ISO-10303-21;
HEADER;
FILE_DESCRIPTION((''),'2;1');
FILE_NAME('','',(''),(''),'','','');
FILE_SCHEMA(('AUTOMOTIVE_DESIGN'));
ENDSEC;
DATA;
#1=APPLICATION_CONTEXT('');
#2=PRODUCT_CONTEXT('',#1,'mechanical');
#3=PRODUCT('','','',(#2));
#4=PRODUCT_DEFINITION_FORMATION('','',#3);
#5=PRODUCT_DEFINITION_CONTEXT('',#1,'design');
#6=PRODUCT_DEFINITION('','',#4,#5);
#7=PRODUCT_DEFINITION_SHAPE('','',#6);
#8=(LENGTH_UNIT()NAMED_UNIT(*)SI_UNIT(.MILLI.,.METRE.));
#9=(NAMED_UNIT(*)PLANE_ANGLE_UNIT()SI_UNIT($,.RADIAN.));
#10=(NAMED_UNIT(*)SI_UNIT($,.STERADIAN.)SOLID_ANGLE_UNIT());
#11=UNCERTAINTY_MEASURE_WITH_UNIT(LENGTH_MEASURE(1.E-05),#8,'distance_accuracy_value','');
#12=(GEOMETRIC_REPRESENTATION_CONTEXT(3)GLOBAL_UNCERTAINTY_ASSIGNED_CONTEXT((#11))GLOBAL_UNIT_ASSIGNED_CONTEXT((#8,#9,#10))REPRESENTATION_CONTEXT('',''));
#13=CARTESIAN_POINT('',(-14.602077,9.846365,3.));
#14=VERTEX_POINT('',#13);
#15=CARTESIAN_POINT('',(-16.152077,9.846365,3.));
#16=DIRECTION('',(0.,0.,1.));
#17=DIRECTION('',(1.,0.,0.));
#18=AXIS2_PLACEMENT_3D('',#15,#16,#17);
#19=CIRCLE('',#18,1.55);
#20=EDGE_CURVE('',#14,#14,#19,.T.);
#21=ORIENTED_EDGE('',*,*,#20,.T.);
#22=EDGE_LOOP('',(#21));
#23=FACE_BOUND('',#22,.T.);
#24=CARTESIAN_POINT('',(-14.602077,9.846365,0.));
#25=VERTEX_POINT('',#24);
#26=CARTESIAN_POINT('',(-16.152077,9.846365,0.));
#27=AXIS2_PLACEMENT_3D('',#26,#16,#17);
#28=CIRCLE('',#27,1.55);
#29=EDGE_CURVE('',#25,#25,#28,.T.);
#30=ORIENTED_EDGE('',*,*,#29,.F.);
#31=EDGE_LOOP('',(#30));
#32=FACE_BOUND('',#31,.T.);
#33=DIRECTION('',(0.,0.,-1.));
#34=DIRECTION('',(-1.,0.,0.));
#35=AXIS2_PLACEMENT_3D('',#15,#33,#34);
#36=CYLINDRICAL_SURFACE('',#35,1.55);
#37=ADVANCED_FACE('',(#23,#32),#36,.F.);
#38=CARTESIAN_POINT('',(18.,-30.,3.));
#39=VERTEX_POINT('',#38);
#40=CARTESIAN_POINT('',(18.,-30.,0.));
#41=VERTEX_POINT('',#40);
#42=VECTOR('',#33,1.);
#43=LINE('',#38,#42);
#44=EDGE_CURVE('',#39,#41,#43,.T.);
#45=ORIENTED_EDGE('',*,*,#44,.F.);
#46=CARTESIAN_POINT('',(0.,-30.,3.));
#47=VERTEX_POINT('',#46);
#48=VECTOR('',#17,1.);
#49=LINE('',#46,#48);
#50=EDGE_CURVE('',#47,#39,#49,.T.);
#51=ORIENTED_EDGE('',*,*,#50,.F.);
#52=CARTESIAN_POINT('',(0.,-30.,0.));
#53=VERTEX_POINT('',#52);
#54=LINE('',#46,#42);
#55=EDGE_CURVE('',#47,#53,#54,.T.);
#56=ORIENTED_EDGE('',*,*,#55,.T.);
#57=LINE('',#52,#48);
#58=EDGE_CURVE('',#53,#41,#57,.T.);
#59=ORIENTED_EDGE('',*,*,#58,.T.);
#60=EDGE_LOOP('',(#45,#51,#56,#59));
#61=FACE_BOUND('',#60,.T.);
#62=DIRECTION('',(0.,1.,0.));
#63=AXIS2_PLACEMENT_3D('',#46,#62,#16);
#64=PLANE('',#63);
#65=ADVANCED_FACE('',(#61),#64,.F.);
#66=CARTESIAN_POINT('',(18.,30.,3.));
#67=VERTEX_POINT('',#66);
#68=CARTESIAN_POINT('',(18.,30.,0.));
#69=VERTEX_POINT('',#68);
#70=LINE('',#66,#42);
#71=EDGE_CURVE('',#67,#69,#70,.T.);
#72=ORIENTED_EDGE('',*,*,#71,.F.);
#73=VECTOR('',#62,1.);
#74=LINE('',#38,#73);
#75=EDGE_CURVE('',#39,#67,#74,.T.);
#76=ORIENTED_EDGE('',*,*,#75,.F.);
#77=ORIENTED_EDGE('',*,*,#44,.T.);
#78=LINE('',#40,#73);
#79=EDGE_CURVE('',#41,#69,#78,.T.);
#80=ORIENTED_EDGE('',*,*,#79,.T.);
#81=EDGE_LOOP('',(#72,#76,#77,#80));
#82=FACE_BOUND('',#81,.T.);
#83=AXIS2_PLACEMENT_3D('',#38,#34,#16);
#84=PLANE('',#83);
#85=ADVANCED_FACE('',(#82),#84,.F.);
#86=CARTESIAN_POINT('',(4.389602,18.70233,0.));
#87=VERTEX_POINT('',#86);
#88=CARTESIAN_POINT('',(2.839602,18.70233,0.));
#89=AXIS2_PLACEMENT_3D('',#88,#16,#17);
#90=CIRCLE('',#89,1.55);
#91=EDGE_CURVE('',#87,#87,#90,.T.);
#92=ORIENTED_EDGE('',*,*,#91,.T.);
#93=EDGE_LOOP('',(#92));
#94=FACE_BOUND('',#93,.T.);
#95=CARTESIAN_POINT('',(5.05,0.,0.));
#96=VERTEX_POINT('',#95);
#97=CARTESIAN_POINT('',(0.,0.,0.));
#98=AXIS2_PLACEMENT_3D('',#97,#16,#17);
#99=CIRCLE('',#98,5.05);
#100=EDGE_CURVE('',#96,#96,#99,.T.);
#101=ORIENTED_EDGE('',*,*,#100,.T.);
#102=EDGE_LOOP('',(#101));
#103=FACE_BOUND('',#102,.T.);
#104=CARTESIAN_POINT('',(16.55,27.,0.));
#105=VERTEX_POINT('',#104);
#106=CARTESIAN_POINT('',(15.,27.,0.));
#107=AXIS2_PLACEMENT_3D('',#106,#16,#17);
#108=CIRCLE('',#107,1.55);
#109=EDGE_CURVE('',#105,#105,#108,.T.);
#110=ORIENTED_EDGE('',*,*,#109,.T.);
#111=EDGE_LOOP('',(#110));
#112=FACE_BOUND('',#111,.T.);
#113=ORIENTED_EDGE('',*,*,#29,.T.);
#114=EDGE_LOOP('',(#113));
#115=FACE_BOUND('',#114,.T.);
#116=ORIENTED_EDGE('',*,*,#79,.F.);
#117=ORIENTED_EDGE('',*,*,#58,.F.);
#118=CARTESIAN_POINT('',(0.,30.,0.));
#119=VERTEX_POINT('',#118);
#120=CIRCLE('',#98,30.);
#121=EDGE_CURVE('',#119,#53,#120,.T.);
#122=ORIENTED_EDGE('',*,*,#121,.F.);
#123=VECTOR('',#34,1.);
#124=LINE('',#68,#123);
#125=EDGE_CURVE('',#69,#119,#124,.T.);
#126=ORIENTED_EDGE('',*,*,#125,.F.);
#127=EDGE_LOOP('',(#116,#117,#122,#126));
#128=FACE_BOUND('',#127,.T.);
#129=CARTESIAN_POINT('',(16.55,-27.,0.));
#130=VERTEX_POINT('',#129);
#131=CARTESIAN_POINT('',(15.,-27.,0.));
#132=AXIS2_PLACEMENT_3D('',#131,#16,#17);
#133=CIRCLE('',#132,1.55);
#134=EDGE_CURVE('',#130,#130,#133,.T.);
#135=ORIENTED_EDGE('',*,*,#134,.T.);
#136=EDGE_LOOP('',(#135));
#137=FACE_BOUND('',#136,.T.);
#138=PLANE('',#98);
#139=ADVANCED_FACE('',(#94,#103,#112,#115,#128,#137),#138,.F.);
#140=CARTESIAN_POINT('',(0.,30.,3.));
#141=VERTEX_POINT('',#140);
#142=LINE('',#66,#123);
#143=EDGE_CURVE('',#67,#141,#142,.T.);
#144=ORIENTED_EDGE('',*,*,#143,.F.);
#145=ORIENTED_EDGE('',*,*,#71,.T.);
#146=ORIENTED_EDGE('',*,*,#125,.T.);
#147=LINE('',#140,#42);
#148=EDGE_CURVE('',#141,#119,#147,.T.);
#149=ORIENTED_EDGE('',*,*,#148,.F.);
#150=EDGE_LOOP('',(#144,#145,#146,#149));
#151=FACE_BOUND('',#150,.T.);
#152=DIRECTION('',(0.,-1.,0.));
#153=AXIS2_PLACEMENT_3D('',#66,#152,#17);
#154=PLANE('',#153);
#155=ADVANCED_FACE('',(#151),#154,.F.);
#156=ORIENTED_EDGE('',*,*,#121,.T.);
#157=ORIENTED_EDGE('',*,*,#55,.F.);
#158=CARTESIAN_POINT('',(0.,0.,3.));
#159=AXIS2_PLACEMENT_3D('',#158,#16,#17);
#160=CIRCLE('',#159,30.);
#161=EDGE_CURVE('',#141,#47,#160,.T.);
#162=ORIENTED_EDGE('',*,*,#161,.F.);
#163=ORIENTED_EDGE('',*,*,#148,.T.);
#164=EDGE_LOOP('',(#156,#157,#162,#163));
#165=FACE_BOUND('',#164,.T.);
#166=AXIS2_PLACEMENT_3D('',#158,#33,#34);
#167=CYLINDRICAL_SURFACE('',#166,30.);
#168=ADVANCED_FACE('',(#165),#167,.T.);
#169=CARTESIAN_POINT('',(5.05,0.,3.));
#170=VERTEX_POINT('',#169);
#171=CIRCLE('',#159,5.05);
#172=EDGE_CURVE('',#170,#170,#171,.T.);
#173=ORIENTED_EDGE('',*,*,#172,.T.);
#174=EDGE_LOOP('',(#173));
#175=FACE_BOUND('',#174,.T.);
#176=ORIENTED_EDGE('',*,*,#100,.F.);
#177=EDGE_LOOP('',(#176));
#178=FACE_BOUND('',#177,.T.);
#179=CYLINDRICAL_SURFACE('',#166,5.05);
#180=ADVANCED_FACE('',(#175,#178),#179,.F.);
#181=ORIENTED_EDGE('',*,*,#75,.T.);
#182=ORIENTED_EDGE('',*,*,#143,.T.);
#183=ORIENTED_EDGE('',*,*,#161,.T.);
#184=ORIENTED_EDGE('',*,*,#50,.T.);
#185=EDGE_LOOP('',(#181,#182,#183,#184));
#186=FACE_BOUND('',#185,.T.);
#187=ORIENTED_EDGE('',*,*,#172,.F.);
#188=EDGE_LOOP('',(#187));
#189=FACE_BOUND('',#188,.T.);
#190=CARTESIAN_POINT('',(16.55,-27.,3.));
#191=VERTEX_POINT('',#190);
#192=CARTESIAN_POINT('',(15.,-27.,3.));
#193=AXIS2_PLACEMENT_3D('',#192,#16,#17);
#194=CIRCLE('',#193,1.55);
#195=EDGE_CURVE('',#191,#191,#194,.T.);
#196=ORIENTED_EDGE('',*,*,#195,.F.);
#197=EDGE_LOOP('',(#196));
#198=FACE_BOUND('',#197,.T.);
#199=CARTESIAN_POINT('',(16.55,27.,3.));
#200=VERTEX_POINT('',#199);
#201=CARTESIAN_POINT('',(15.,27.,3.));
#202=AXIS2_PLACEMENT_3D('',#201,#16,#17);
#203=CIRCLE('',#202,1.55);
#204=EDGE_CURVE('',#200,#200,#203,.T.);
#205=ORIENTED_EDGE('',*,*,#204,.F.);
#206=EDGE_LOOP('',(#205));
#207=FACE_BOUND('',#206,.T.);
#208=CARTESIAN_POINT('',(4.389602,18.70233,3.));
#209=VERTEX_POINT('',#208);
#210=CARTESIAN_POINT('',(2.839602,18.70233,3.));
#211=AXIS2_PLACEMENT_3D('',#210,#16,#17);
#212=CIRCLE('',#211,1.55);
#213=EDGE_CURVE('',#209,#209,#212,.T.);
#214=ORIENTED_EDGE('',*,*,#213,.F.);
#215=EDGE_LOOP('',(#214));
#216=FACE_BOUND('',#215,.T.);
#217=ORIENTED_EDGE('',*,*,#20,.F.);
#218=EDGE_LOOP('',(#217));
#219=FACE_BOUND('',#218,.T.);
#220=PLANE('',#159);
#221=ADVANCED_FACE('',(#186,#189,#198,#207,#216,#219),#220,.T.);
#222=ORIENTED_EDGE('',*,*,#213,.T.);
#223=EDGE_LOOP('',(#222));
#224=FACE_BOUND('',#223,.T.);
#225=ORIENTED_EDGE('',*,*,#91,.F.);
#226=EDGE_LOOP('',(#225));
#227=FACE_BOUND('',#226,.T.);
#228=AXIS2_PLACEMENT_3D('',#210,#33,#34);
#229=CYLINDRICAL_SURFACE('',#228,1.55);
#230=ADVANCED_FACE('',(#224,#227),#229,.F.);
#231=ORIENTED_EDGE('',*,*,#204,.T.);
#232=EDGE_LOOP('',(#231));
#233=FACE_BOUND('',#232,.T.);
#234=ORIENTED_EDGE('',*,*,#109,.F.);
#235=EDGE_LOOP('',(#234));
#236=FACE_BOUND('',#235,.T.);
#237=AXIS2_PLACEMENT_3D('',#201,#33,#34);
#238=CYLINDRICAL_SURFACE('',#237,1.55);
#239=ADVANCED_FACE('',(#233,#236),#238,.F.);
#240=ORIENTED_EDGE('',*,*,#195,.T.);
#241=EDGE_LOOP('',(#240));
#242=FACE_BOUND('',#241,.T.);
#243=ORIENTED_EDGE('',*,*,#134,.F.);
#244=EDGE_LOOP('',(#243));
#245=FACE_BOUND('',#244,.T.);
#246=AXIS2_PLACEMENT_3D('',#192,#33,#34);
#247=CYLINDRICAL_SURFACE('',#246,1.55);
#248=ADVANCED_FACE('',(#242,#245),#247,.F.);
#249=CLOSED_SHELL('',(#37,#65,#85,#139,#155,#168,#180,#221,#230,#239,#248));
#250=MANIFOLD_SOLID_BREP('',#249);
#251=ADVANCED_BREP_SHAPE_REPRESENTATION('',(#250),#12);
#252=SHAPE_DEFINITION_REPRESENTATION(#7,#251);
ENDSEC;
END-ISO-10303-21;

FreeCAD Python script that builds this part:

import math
import FreeCAD as App
import Part
import Sketcher
from FreeCAD import Vector

doc = App.newDocument("Part")
params = doc.addObject("Spreadsheet::Sheet", "Params")
for row, (alias, value) in enumerate([
    ("sketch1_radius", "30 mm"),
    ("sketch1_diameter", "3.1 mm"),
    ("sketch1_diameter2", "10.1 mm"),
    ("sketch1_width", "18 mm"),
    ("pad1_length", "3 mm"),
], start=1):
    params.set(f"A{row}", alias)
    params.set(f"B{row}", "=" + value)
    params.setAlias(f"B{row}", alias)

body = doc.addObject("PartDesign::Body", "Body")

sketch1 = doc.addObject("Sketcher::SketchObject", "Sketch")
body.addObject(sketch1)
sketch1.AttachmentSupport = (doc.XY_Plane, [""])
sketch1.MapMode = "FlatFace"
sketch1.addGeometry(Part.LineSegment(Vector(0, -30, 0), Vector(18, -30, 0)), False)
sketch1.addGeometry(Part.LineSegment(Vector(18, -30, 0), Vector(18, 30, 0)), False)
sketch1.addGeometry(Part.LineSegment(Vector(18, 30, 0), Vector(0, 30, 0)), False)
sketch1.addGeometry(Part.ArcOfCircle(Part.Circle(Vector(0, 0, 0), Vector(0, 0, 1), 30), math.radians(90), math.radians(270)), False)
sketch1.addGeometry(Part.Circle(Vector(15, -27, 0), Vector(0, 0, 1), 1.6), False)
sketch1.addGeometry(Part.Circle(Vector(-16.2, 9.8, 0), Vector(0, 0, 1), 1.6), False)
sketch1.addGeometry(Part.Circle(Vector(0, 0, 0), Vector(0, 0, 1), 5), False)
sketch1.addGeometry(Part.Circle(Vector(2.8, 18.7, 0), Vector(0, 0, 1), 1.6), False)
sketch1.addGeometry(Part.Circle(Vector(15, 27, 0), Vector(0, 0, 1), 1.6), False)
sketch1.addConstraint(Sketcher.Constraint("Coincident", 0, 2, 1, 1))
sketch1.addConstraint(Sketcher.Constraint("Coincident", 1, 2, 2, 1))
sketch1.addConstraint(Sketcher.Constraint("Tangent", 2, 2, 3, 1))
sketch1.addConstraint(Sketcher.Constraint("Tangent", 3, 2, 0, 1))
sketch1.addConstraint(Sketcher.Constraint("Horizontal", 0))
sketch1.addConstraint(Sketcher.Constraint("Vertical", 1))
sketch1.addConstraint(Sketcher.Constraint("Horizontal", 2))
sketch1.addConstraint(Sketcher.Constraint("Coincident", 3, 3, -1, 1))
sketch1.addConstraint(Sketcher.Constraint("Coincident", 6, 3, -1, 1))
sketch1.addConstraint(Sketcher.Constraint("Equal", 4, 5))
sketch1.addConstraint(Sketcher.Constraint("Equal", 5, 7))
sketch1.addConstraint(Sketcher.Constraint("Equal", 7, 8))
sketch1.addConstraint(Sketcher.Constraint("Symmetric", 4, 3, 8, 3, -1))
sketch1.addConstraint(Sketcher.Constraint("Radius", 3, 30.0))
sketch1.addConstraint(Sketcher.Constraint("Diameter", 4, 3.1))
sketch1.addConstraint(Sketcher.Constraint("Diameter", 6, 10.1))
sketch1.addConstraint(Sketcher.Constraint("DistanceX", 0, 1, 0, 2, 18.0))
sketch1.addConstraint(Sketcher.Constraint("DistanceX", -1, 1, 4, 3, 15.0))
sketch1.addConstraint(Sketcher.Constraint("DistanceY", 4, 3, -1, 1, 27.0))
sketch1.addConstraint(Sketcher.Constraint("DistanceY", -1, 1, 7, 3, 18.70233))
sketch1.addConstraint(Sketcher.Constraint("DistanceX", 5, 3, 7, 3, 18.99168))
sketch1.addConstraint(Sketcher.Constraint("DistanceX", 5, 3, -1, 1, 16.152077))
sketch1.addConstraint(Sketcher.Constraint("DistanceY", -1, 1, 5, 3, 9.846365))
sketch1.setExpression("Constraints[13]", "Params.sketch1_radius")
sketch1.setExpression("Constraints[14]", "Params.sketch1_diameter")
sketch1.setExpression("Constraints[15]", "Params.sketch1_diameter2")
sketch1.setExpression("Constraints[16]", "Params.sketch1_width")
pad1 = doc.addObject("PartDesign::Pad", "Pad")
body.addObject(pad1)
pad1.Profile = sketch1
pad1.setExpression("Length", "Params.pad1_length")

doc.recompute()
